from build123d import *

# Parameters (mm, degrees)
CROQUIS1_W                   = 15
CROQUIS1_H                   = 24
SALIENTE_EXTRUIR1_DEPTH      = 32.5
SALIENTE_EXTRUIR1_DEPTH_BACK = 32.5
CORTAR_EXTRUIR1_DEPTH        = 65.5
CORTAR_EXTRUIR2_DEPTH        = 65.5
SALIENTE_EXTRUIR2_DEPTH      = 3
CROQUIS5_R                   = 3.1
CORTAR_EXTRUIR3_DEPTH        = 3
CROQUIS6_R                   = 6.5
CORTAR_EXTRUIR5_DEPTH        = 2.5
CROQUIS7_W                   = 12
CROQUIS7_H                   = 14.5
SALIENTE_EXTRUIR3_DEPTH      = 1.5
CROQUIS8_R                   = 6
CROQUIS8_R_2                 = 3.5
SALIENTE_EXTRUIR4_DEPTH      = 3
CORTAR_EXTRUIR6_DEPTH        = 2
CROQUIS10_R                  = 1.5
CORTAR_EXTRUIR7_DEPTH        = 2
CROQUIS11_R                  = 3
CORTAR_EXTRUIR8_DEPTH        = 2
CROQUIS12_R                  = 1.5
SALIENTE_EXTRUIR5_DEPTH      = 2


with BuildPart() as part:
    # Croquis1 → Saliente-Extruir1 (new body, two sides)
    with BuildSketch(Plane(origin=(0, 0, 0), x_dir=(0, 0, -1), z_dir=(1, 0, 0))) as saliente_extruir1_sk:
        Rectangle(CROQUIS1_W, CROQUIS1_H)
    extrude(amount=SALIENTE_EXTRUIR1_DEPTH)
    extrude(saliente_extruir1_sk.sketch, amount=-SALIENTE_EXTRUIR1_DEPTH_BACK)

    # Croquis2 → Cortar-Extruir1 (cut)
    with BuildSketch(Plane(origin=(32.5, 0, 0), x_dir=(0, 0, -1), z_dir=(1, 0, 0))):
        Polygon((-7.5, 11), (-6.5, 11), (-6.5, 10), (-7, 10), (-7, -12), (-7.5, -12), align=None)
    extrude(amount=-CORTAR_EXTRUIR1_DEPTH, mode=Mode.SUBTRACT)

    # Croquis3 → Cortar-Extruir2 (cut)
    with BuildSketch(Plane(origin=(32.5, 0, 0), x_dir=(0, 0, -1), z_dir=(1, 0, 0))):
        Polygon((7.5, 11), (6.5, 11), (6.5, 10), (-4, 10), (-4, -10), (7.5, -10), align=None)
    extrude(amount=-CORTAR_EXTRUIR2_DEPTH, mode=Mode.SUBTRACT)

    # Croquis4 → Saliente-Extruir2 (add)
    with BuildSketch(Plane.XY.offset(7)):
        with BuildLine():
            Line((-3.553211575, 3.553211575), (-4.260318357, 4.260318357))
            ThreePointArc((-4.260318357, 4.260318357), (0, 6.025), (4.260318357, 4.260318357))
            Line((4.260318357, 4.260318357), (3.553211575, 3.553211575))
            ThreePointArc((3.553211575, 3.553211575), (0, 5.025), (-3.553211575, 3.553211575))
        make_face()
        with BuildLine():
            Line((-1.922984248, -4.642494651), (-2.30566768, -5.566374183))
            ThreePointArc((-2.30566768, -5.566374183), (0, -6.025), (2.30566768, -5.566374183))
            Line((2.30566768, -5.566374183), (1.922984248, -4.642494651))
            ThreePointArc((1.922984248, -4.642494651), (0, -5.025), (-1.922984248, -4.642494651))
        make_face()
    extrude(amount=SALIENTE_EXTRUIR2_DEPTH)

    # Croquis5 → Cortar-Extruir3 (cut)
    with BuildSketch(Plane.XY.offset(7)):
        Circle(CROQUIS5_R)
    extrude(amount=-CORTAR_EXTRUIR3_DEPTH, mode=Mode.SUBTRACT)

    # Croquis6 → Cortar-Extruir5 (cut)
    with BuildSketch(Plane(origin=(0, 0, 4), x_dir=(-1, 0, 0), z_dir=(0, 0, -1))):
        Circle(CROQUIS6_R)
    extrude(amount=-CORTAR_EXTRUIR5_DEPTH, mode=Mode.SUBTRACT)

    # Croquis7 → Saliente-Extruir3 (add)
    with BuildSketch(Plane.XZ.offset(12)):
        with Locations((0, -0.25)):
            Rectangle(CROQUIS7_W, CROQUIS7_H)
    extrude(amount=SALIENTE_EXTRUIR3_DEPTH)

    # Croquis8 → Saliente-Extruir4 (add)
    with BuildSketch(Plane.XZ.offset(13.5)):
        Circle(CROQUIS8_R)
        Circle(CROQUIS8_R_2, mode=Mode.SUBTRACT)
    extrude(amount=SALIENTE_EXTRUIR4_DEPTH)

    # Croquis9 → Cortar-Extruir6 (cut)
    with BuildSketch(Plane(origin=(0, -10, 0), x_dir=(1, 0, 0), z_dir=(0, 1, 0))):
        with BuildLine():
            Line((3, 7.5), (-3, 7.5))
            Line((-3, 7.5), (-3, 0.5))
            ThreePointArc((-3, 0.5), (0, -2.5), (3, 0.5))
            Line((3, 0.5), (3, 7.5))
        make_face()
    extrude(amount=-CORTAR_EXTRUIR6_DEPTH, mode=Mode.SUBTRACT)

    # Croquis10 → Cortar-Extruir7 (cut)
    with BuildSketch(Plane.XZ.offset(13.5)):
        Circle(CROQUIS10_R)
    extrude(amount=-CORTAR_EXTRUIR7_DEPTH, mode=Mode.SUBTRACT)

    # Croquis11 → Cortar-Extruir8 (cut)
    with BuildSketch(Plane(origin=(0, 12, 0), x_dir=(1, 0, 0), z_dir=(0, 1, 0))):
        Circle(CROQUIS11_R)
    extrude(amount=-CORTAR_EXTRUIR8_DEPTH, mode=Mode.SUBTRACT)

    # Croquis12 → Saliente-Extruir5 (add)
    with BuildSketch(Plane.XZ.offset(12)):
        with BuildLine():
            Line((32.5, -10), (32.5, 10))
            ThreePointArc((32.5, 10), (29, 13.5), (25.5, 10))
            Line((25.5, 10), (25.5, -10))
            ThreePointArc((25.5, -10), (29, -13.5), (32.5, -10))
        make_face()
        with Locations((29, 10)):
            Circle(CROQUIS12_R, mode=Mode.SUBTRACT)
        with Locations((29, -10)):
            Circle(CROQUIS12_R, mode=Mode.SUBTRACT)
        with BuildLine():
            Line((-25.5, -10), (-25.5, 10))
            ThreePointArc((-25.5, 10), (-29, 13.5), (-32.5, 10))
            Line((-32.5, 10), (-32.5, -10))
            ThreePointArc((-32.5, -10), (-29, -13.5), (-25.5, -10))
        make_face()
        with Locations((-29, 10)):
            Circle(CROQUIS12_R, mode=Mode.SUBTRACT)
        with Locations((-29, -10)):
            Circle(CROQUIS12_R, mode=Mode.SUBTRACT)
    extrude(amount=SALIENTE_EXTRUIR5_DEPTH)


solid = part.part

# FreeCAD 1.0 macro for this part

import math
import FreeCAD as App
import Part
import Sketcher
from FreeCAD import Vector
Q = App.Units.Quantity

doc = App.newDocument("Part")
body = doc.addObject("PartDesign::Body", "Body")

# Sketch on YZ plane
sketch1 = body.newObject("Sketcher::SketchObject", "Sketch")
sketch1.AttachmentSupport = (doc.getObject("YZ_Plane"), [""])
sketch1.MapMode = "FlatFace"
sketch1.addGeometry([
    Part.LineSegment(Vector(12, 7.5, 0), Vector(-12, 7.5, 0)),
    Part.LineSegment(Vector(-12, 7.5, 0), Vector(-12, -7.5, 0)),
    Part.LineSegment(Vector(-12, -7.5, 0), Vector(12, -7.5, 0)),
    Part.LineSegment(Vector(12, -7.5, 0), Vector(12, 7.5, 0)),
], False)
sketch1.addConstraint([
    Sketcher.Constraint("Coincident", 0, 2, 1, 1),
    Sketcher.Constraint("Coincident", 1, 2, 2, 1),
    Sketcher.Constraint("Coincident", 2, 2, 3, 1),
    Sketcher.Constraint("Coincident", 3, 2, 0, 1),
    Sketcher.Constraint("Horizontal", 0),
    Sketcher.Constraint("Vertical", 1),
    Sketcher.Constraint("Horizontal", 2),
    Sketcher.Constraint("Vertical", 3),
    Sketcher.Constraint("Symmetric", 0, 2, 2, 2, -1, 1),
    Sketcher.Constraint("DistanceX", 0, 2, 0, 1, 24.0),
    Sketcher.Constraint("DistanceY", 1, 2, 1, 1, 15.0),
])
pad1 = body.newObject("PartDesign::Pad", "Pad")
pad1.Profile = sketch1
pad1.Type = "TwoLengths"
pad1.Length = 32.5
pad1.Length2 = 32.5

# Sketch on YZ plane
sketch2 = body.newObject("Sketcher::SketchObject", "Sketch001")
sketch2.AttachmentSupport = (doc.getObject("YZ_Plane"), [""])
sketch2.MapMode = "FlatFace"
sketch2.AttachmentOffset = App.Placement(Vector(0, 0, 32.5), App.Rotation())
sketch2.addGeometry([
    Part.LineSegment(Vector(11, 6.5, 0), Vector(11, 7.5, 0)),  # 0
    Part.LineSegment(Vector(11, 7.5, 0), Vector(-12, 7.5, 0)),  # 1
    Part.LineSegment(Vector(-12, 7.5, 0), Vector(-12, 7, 0)),  # 2
    Part.LineSegment(Vector(-12, 7, 0), Vector(10, 7, 0)),  # 3
    Part.LineSegment(Vector(10, 7, 0), Vector(10, 6.5, 0)),  # 4
    Part.LineSegment(Vector(10, 6.5, 0), Vector(11, 6.5, 0)),  # 5
], False)
sketch2.addConstraint([
    Sketcher.Constraint("Coincident", 0, 2, 1, 1),
    Sketcher.Constraint("Coincident", 1, 2, 2, 1),
    Sketcher.Constraint("Coincident", 2, 2, 3, 1),
    Sketcher.Constraint("Coincident", 3, 2, 4, 1),
    Sketcher.Constraint("Coincident", 4, 2, 5, 1),
    Sketcher.Constraint("Coincident", 5, 2, 0, 1),
    Sketcher.Constraint("Vertical", 0),
    Sketcher.Constraint("Horizontal", 1),
    Sketcher.Constraint("Vertical", 2),
    Sketcher.Constraint("Horizontal", 3),
    Sketcher.Constraint("Vertical", 4),
    Sketcher.Constraint("Horizontal", 5),
    Sketcher.Constraint("Equal", 5, 0),
    Sketcher.Constraint("Equal", 2, 4),
    Sketcher.Constraint("DistanceX", 1, 2, 1, 1, 23.0),
    Sketcher.Constraint("DistanceX", 3, 1, 3, 2, 22.0),
    Sketcher.Constraint("DistanceX", -1, 1, 0, 2, 11.0),
    Sketcher.Constraint("DistanceY", -1, 1, 2, 2, 7.0),
])
pocket1 = body.newObject("PartDesign::Pocket", "Pocket")
pocket1.Profile = sketch2
pocket1.Length = 65.5

# Sketch on YZ plane
sketch3 = body.newObject("Sketcher::SketchObject", "Sketch002")
sketch3.AttachmentSupport = (doc.getObject("YZ_Plane"), [""])
sketch3.MapMode = "FlatFace"
sketch3.AttachmentOffset = App.Placement(Vector(0, 0, 32.5), App.Rotation())
sketch3.addGeometry([
    Part.LineSegment(Vector(11, -7.5, 0), Vector(11, -6.5, 0)),  # 0
    Part.LineSegment(Vector(11, -6.5, 0), Vector(10, -6.5, 0)),  # 1
    Part.LineSegment(Vector(10, -6.5, 0), Vector(10, 4, 0)),  # 2
    Part.LineSegment(Vector(10, 4, 0), Vector(-10, 4, 0)),  # 3
    Part.LineSegment(Vector(-10, 4, 0), Vector(-10, -7.5, 0)),  # 4
    Part.LineSegment(Vector(-10, -7.5, 0), Vector(11, -7.5, 0)),  # 5
], False)
sketch3.addConstraint([
    Sketcher.Constraint("Coincident", 0, 2, 1, 1),
    Sketcher.Constraint("Coincident", 1, 2, 2, 1),
    Sketcher.Constraint("Coincident", 2, 2, 3, 1),
    Sketcher.Constraint("Coincident", 3, 2, 4, 1),
    Sketcher.Constraint("Coincident", 4, 2, 5, 1),
    Sketcher.Constraint("Coincident", 5, 2, 0, 1),
    Sketcher.Constraint("Vertical", 0),
    Sketcher.Constraint("Horizontal", 1),
    Sketcher.Constraint("Vertical", 2),
    Sketcher.Constraint("Horizontal", 3),
    Sketcher.Constraint("Vertical", 4),
    Sketcher.Constraint("Horizontal", 5),
    Sketcher.Constraint("Equal", 1, 0),
    Sketcher.Constraint("DistanceX", 1, 2, 1, 1, 1.0),
    Sketcher.Constraint("DistanceX", 3, 2, 3, 1, 20.0),
    Sketcher.Constraint("DistanceY", 2, 1, 2, 2, 10.5),
    Sketcher.Constraint("DistanceX", -1, 1, 0, 2, 11.0),
    Sketcher.Constraint("DistanceY", -1, 1, 2, 2, 4.0),
])
pocket2 = body.newObject("PartDesign::Pocket", "Pocket001")
pocket2.Profile = sketch3
pocket2.Length = 65.5

# Sketch on XY plane
sketch4 = body.newObject("Sketcher::SketchObject", "Sketch003")
sketch4.AttachmentSupport = (doc.getObject("XY_Plane"), [""])
sketch4.MapMode = "FlatFace"
sketch4.AttachmentOffset = App.Placement(Vector(0, 0, 7), App.Rotation())
sketch4.addGeometry([
    Part.LineSegment(Vector(-4.260318, 4.260318, 0), Vector(-3.553212, 3.553212, 0)),  # 0
    Part.ArcOfCircle(Part.Circle(Vector(0, 0, 0), Vector(0, 0, 1), 5.025), math.radians(45), math.radians(135)),  # 1
    Part.LineSegment(Vector(3.553212, 3.553212, 0), Vector(4.260318, 4.260318, 0)),  # 2
    Part.ArcOfCircle(Part.Circle(Vector(0, 0, 0), Vector(0, 0, 1), 6.025), math.radians(45), math.radians(135)),  # 3
    Part.LineSegment(Vector(-1.922984, -4.642495, 0), Vector(-2.305668, -5.566374, 0)),  # 4
    Part.ArcOfCircle(Part.Circle(Vector(0, 0, 0), Vector(0, 0, 1), 6.025), math.radians(-112.5), math.radians(-67.5)),  # 5
    Part.LineSegment(Vector(2.305668, -5.566374, 0), Vector(1.922984, -4.642495, 0)),  # 6
    Part.ArcOfCircle(Part.Circle(Vector(0, 0, 0), Vector(0, 0, 1), 5.025), math.radians(-112.5), math.radians(-67.5)),  # 7
], False)
sketch4.addConstraint([
    Sketcher.Constraint("Coincident", 0, 2, 1, 2),
    Sketcher.Constraint("Coincident", 1, 1, 2, 1),
    Sketcher.Constraint("Coincident", 2, 2, 3, 1),
    Sketcher.Constraint("Coincident", 3, 2, 0, 1),
    Sketcher.Constraint("Coincident", 4, 2, 5, 1),
    Sketcher.Constraint("Coincident", 5, 2, 6, 1),
    Sketcher.Constraint("Coincident", 6, 2, 7, 2),
    Sketcher.Constraint("Coincident", 7, 1, 4, 1),
    Sketcher.Constraint("Coincident", 1, 3, -1, 1),
    Sketcher.Constraint("Coincident", 3, 3, -1, 1),
    Sketcher.Constraint("Coincident", 5, 3, -1, 1),
    Sketcher.Constraint("Coincident", 7, 3, -1, 1),
    Sketcher.Constraint("Equal", 3, 5),
    Sketcher.Constraint("Equal", 1, 7),
    Sketcher.Constraint("Perpendicular", 0, 2),
    Sketcher.Constraint("Horizontal", 0, 2, 1, 1),
    Sketcher.Constraint("Horizontal", 2, 2, 3, 2),
    Sketcher.Constraint("Horizontal", 4, 2, 5, 2),
    Sketcher.Constraint("Horizontal", 6, 2, 7, 1),
    Sketcher.Constraint("Distance", 0, 1.0),
    Sketcher.Constraint("Angle", 4, Q("-112.5 deg")),
    Sketcher.Constraint("Radius", 1, 5.025),
    Sketcher.Constraint("DistanceX", 0, 2, -1, 1, 3.553212),
    Sketcher.Constraint("DistanceX", 4, 2, 6, 2, 4.228652),
])
pad2 = body.newObject("PartDesign::Pad", "Pad001")
pad2.Profile = sketch4
pad2.Length = 3

# Sketch on XY plane
sketch5 = body.newObject("Sketcher::SketchObject", "Sketch004")
sketch5.AttachmentSupport = (doc.getObject("XY_Plane"), [""])
sketch5.MapMode = "FlatFace"
sketch5.AttachmentOffset = App.Placement(Vector(0, 0, 7), App.Rotation())
sketch5.addGeometry(Part.Circle(Vector(0, 0, 0), Vector(0, 0, 1), 3.1), False)
sketch5.addConstraint([
    Sketcher.Constraint("Coincident", 0, 3, -1, 1),
    Sketcher.Constraint("Diameter", 0, 6.2),
])
pocket3 = body.newObject("PartDesign::Pocket", "Pocket002")
pocket3.Profile = sketch5
pocket3.Length = 3

# Sketch on XY plane
sketch6 = body.newObject("Sketcher::SketchObject", "Sketch005")
sketch6.AttachmentSupport = (doc.getObject("XY_Plane"), [""])
sketch6.MapMode = "FlatFace"
sketch6.AttachmentOffset = App.Placement(Vector(0, 0, 4), App.Rotation())
sketch6.addGeometry(Part.Circle(Vector(0, 0, 0), Vector(0, 0, 1), 6.5), False)
sketch6.addConstraint([
    Sketcher.Constraint("Coincident", 0, 3, -1, 1),
    Sketcher.Constraint("Diameter", 0, 13.0),
])
pocket4 = body.newObject("PartDesign::Pocket", "Pocket003")
pocket4.Profile = sketch6
pocket4.Length = 2.5
pocket4.Reversed = True

# Sketch on XZ plane
sketch7 = body.newObject("Sketcher::SketchObject", "Sketch006")
sketch7.AttachmentSupport = (doc.getObject("XZ_Plane"), [""])
sketch7.MapMode = "FlatFace"
sketch7.AttachmentOffset = App.Placement(Vector(0, 0, 12), App.Rotation())
sketch7.addGeometry([
    Part.LineSegment(Vector(-6, 7, 0), Vector(-6, -7.5, 0)),
    Part.LineSegment(Vector(-6, -7.5, 0), Vector(6, -7.5, 0)),
    Part.LineSegment(Vector(6, -7.5, 0), Vector(6, 7, 0)),
    Part.LineSegment(Vector(6, 7, 0), Vector(-6, 7, 0)),
], False)
sketch7.addConstraint([
    Sketcher.Constraint("Coincident", 0, 2, 1, 1),
    Sketcher.Constraint("Coincident", 1, 2, 2, 1),
    Sketcher.Constraint("Coincident", 2, 2, 3, 1),
    Sketcher.Constraint("Coincident", 3, 2, 0, 1),
    Sketcher.Constraint("Vertical", 0),
    Sketcher.Constraint("Horizontal", 1),
    Sketcher.Constraint("Vertical", 2),
    Sketcher.Constraint("Horizontal", 3),
    Sketcher.Constraint("DistanceX", 1, 1, 1, 2, 12.0),
    Sketcher.Constraint("DistanceY", 0, 2, 0, 1, 14.5),
    Sketcher.Constraint("DistanceX", 0, 2, -1, 1, 6.0),
    Sketcher.Constraint("DistanceY", -1, 1, 2, 2, 7.0),
])
pad3 = body.newObject("PartDesign::Pad", "Pad002")
pad3.Profile = sketch7
pad3.Length = 1.5

# Sketch on XZ plane
sketch8 = body.newObject("Sketcher::SketchObject", "Sketch007")
sketch8.AttachmentSupport = (doc.getObject("XZ_Plane"), [""])
sketch8.MapMode = "FlatFace"
sketch8.AttachmentOffset = App.Placement(Vector(0, 0, 13.5), App.Rotation())
sketch8.addGeometry([
    Part.Circle(Vector(0, 0, 0), Vector(0, 0, 1), 6),
    Part.Circle(Vector(0, 0, 0), Vector(0, 0, 1), 3.5),
], False)
sketch8.addConstraint([
    Sketcher.Constraint("Coincident", 0, 3, -1, 1),
    Sketcher.Constraint("Coincident", 1, 3, -1, 1),
    Sketcher.Constraint("Diameter", 0, 12.0),
    Sketcher.Constraint("Diameter", 1, 7.0),
])
pad4 = body.newObject("PartDesign::Pad", "Pad003")
pad4.Profile = sketch8
pad4.Length = 3

# Sketch on XZ plane
sketch9 = body.newObject("Sketcher::SketchObject", "Sketch008")
sketch9.AttachmentSupport = (doc.getObject("XZ_Plane"), [""])
sketch9.MapMode = "FlatFace"
sketch9.AttachmentOffset = App.Placement(Vector(0, 0, 10), App.Rotation())
sketch9.addGeometry([
    Part.LineSegment(Vector(3, -7.5, 0), Vector(-3, -7.5, 0)),
    Part.LineSegment(Vector(-3, -7.5, 0), Vector(-3, -0.5, 0)),
    Part.ArcOfCircle(Part.Circle(Vector(0, -0.5, 0), Vector(0, 0, 1), 3), math.radians(0), math.radians(180)),
    Part.LineSegment(Vector(3, -0.5, 0), Vector(3, -7.5, 0)),
], False)
sketch9.addConstraint([
    Sketcher.Constraint("Coincident", 0, 2, 1, 1),
    Sketcher.Constraint("Tangent", 1, 2, 2, 2),
    Sketcher.Constraint("Tangent", 2, 1, 3, 1),
    Sketcher.Constraint("Coincident", 3, 2, 0, 1),
    Sketcher.Constraint("Horizontal", 0),
    Sketcher.Constraint("Vertical", 1),
    Sketcher.Constraint("Vertical", 3),
    Sketcher.Constraint("PointOnObject", 2, 3, -2),
    Sketcher.Constraint("Radius", 2, 3.0),
    Sketcher.Constraint("DistanceY", 1, 1, 1, 2, 7.0),
    Sketcher.Constraint("DistanceY", 2, 3, -1, 1, 0.5),
])
pocket5 = body.newObject("PartDesign::Pocket", "Pocket004")
pocket5.Profile = sketch9
pocket5.Length = 2
pocket5.Reversed = True

# Sketch on XZ plane
sketch10 = body.newObject("Sketcher::SketchObject", "Sketch009")
sketch10.AttachmentSupport = (doc.getObject("XZ_Plane"), [""])
sketch10.MapMode = "FlatFace"
sketch10.AttachmentOffset = App.Placement(Vector(0, 0, 13.5), App.Rotation())
sketch10.addGeometry(Part.Circle(Vector(0, 0, 0), Vector(0, 0, 1), 1.5), False)
sketch10.addConstraint([
    Sketcher.Constraint("Coincident", 0, 3, -1, 1),
    Sketcher.Constraint("Diameter", 0, 3.0),
])
pocket6 = body.newObject("PartDesign::Pocket", "Pocket005")
pocket6.Profile = sketch10
pocket6.Length = 2

# Sketch on XZ plane
sketch11 = body.newObject("Sketcher::SketchObject", "Sketch010")
sketch11.AttachmentSupport = (doc.getObject("XZ_Plane"), [""])
sketch11.MapMode = "FlatFace"
sketch11.AttachmentOffset = App.Placement(Vector(0, 0, -12), App.Rotation())
sketch11.addGeometry(Part.Circle(Vector(0, 0, 0), Vector(0, 0, 1), 3), False)
sketch11.addConstraint([
    Sketcher.Constraint("Coincident", 0, 3, -1, 1),
    Sketcher.Constraint("Diameter", 0, 6.0),
])
pocket7 = body.newObject("PartDesign::Pocket", "Pocket006")
pocket7.Profile = sketch11
pocket7.Length = 2
pocket7.Reversed = True

# Sketch on XZ plane
sketch12 = body.newObject("Sketcher::SketchObject", "Sketch011")
sketch12.AttachmentSupport = (doc.getObject("XZ_Plane"), [""])
sketch12.MapMode = "FlatFace"
sketch12.AttachmentOffset = App.Placement(Vector(0, 0, 12), App.Rotation())
sketch12.addGeometry([
    Part.LineSegment(Vector(32.5, -10, 0), Vector(32.5, 10, 0)),  # 0
    Part.ArcOfCircle(Part.Circle(Vector(29, 10, 0), Vector(0, 0, 1), 3.5), math.radians(0), math.radians(180)),  # 1
    Part.LineSegment(Vector(25.5, 10, 0), Vector(25.5, -10, 0)),  # 2
    Part.ArcOfCircle(Part.Circle(Vector(29, -10, 0), Vector(0, 0, 1), 3.5), math.radians(180), math.radians(360)),  # 3
    Part.Circle(Vector(29, -10, 0), Vector(0, 0, 1), 1.5),  # 4
    Part.Circle(Vector(29, 10, 0), Vector(0, 0, 1), 1.5),  # 5
    Part.LineSegment(Vector(-25.5, -10, 0), Vector(-25.5, 10, 0)),  # 6
    Part.ArcOfCircle(Part.Circle(Vector(-29, 10, 0), Vector(0, 0, 1), 3.5), math.radians(0), math.radians(180)),  # 7
    Part.LineSegment(Vector(-32.5, 10, 0), Vector(-32.5, -10, 0)),  # 8
    Part.ArcOfCircle(Part.Circle(Vector(-29, -10, 0), Vector(0, 0, 1), 3.5), math.radians(180), math.radians(360)),  # 9
    Part.Circle(Vector(-29, -10, 0), Vector(0, 0, 1), 1.5),  # 10
    Part.Circle(Vector(-29, 10, 0), Vector(0, 0, 1), 1.5),  # 11
], False)
sketch12.addConstraint([
    Sketcher.Constraint("Tangent", 0, 2, 1, 1),
    Sketcher.Constraint("Tangent", 1, 2, 2, 1),
    Sketcher.Constraint("Tangent", 2, 2, 3, 1),
    Sketcher.Constraint("Tangent", 3, 2, 0, 1),
    Sketcher.Constraint("Tangent", 6, 2, 7, 1),
    Sketcher.Constraint("Tangent", 7, 2, 8, 1),
    Sketcher.Constraint("Tangent", 8, 2, 9, 1),
    Sketcher.Constraint("Tangent", 9, 2, 6, 1),
    Sketcher.Constraint("Vertical", 0),
    Sketcher.Constraint("Vertical", 2),
    Sketcher.Constraint("Vertical", 6),
    Sketcher.Constraint("Vertical", 8),
    Sketcher.Constraint("Coincident", 4, 3, 3, 3),
    Sketcher.Constraint("Coincident", 5, 3, 1, 3),
    Sketcher.Constraint("Coincident", 10, 3, 9, 3),
    Sketcher.Constraint("Coincident", 11, 3, 7, 3),
    Sketcher.Constraint("Equal", 4, 5),
    Sketcher.Constraint("Equal", 3, 7),
    Sketcher.Constraint("Equal", 5, 10),
    Sketcher.Constraint("Equal", 10, 11),
    Sketcher.Constraint("Symmetric", 3, 3, 7, 3, -1, 1),
    Sketcher.Constraint("Horizontal", 5, 3, 7, 3),
    Sketcher.Constraint("Horizontal", 4, 3, 9, 3),
    Sketcher.Constraint("Diameter", 4, 3.0),
    Sketcher.Constraint("Radius", 1, 3.5),
    Sketcher.Constraint("DistanceY", 0, 1, 0, 2, 20.0),
    Sketcher.Constraint("DistanceX", -1, 1, 1, 3, 29.0),
])
pad5 = body.newObject("PartDesign::Pad", "Pad004")
pad5.Profile = sketch12
pad5.Length = 2

doc.recompute()
